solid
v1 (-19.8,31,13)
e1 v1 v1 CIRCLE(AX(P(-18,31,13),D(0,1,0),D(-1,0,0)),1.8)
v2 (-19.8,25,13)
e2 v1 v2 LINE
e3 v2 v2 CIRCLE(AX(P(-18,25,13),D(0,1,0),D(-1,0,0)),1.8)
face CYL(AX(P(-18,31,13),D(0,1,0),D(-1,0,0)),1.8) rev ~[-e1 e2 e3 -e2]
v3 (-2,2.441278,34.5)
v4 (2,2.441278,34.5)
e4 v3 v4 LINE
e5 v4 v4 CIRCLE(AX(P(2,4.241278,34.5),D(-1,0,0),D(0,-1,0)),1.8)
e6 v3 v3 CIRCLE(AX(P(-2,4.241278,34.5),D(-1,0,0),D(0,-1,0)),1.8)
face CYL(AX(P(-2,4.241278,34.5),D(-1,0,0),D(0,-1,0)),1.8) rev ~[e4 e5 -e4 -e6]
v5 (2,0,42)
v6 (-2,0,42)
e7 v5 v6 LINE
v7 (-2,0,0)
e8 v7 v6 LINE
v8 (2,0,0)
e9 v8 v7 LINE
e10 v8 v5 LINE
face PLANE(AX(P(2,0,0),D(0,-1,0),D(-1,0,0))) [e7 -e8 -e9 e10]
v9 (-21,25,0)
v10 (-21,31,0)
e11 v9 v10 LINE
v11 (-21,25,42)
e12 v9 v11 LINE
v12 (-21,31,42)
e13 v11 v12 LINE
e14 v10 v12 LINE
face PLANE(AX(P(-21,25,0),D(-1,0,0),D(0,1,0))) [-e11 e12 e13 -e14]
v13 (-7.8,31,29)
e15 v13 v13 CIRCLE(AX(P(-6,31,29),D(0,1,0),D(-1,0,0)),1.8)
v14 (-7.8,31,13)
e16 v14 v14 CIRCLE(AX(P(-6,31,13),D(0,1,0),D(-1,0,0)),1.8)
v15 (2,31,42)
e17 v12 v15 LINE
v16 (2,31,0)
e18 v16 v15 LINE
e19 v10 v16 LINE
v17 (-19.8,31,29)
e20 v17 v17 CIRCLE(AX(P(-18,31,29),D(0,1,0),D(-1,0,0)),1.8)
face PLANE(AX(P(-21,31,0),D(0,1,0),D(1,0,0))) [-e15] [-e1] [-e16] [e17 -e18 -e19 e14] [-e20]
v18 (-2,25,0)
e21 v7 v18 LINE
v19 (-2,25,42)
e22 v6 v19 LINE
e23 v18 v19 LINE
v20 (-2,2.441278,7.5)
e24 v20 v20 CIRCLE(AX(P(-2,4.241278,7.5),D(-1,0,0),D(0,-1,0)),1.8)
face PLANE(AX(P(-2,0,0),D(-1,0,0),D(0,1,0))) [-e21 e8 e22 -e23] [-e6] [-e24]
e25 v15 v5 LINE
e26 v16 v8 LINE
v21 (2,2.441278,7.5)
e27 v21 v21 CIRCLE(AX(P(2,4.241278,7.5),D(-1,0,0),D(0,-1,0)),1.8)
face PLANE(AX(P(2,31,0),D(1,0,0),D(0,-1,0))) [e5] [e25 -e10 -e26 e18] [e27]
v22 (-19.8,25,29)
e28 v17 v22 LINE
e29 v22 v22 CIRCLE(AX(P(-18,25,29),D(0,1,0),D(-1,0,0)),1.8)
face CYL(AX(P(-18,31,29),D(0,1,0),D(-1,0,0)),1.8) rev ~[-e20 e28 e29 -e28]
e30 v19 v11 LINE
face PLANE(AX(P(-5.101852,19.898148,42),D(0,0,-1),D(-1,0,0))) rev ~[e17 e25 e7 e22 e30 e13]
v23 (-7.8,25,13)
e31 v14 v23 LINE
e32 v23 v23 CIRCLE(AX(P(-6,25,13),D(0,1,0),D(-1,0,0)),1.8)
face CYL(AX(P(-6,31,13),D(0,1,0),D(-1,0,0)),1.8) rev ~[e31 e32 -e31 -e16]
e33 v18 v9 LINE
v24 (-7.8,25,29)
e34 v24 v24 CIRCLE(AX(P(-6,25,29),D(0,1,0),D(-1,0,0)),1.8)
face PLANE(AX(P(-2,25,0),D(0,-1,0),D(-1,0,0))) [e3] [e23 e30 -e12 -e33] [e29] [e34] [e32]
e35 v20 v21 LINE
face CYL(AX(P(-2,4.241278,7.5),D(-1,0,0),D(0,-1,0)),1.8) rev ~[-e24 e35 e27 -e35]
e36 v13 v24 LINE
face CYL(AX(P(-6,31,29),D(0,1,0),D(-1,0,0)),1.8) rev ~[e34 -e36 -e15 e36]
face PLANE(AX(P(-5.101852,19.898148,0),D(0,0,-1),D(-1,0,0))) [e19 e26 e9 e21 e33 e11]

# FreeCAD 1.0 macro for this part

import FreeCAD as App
import Part
import Sketcher

V = App.Vector


def add_polygon(sketch, points):
    """Adds a closed chain of lines whose ends are joined by coincident constraints."""
    first, n = sketch.GeometryCount, len(points)
    for a, b in zip(points, points[1:] + points[:1]):
        sketch.addGeometry(Part.LineSegment(App.Vector(*a, 0), App.Vector(*b, 0)), False)
    for i in range(n):
        sketch.addConstraint(Sketcher.Constraint("Coincident", first + i, 2, first + (i + 1) % n, 1))

doc = App.newDocument("Part")
params = doc.addObject("Spreadsheet::Sheet", "Params")
for row, (alias, value) in enumerate([
    ("sketch1_width", "23 mm"),
    ("sketch1_width2", "19 mm"),
    ("sketch1_height", "6 mm"),
    ("sketch1_height2", "25 mm"),
    ("pad1_length", "42 mm"),
    ("sketch2_diameter", "3.6 mm"),
    ("pocket1_length", "6 mm"),
    ("sketch3_diameter", "3.6 mm"),
    ("pocket2_length", "4 mm"),
], start=1):
    params.set(f"A{row}", alias)
    params.set(f"B{row}", "=" + value)
    params.setAlias(f"B{row}", alias)

body = doc.addObject("PartDesign::Body", "Body")

# Sketch on XY plane
sketch1 = doc.addObject("Sketcher::SketchObject", "Sketch")
body.addObject(sketch1)
sketch1.AttachmentSupport = (doc.XY_Plane, [""])
sketch1.MapMode = "FlatFace"
add_polygon(sketch1, [(2, 31), (-21, 31), (-21, 25), (-2, 25), (-2, 0), (2, 0)])  # lines 0-5
sketch1.addConstraint(Sketcher.Constraint("Horizontal", 0))
sketch1.addConstraint(Sketcher.Constraint("Vertical", 1))
sketch1.addConstraint(Sketcher.Constraint("Horizontal", 2))
sketch1.addConstraint(Sketcher.Constraint("Vertical", 3))
sketch1.addConstraint(Sketcher.Constraint("Horizontal", 4))
sketch1.addConstraint(Sketcher.Constraint("Vertical", 5))
sketch1.addConstraint(Sketcher.Constraint("Symmetric", 3, 2, 4, 2, -1, 1))
sketch1.addConstraint(Sketcher.Constraint("DistanceX", 0, 2, 0, 1, 23.0))
sketch1.addConstraint(Sketcher.Constraint("DistanceX", 2, 1, 2, 2, 19.0))
sketch1.addConstraint(Sketcher.Constraint("DistanceY", 1, 2, 1, 1, 6.0))
sketch1.addConstraint(Sketcher.Constraint("DistanceY", 3, 2, 3, 1, 25.0))
sketch1.setExpression("Constraints[13]", "Params.sketch1_width")
sketch1.setExpression("Constraints[14]", "Params.sketch1_width2")
sketch1.setExpression("Constraints[15]", "Params.sketch1_height")
sketch1.setExpression("Constraints[16]", "Params.sketch1_height2")
pad1 = doc.addObject("PartDesign::Pad", "Pad")
body.addObject(pad1)
pad1.Profile = sketch1
pad1.setExpression("Length", "Params.pad1_length")

# Sketch on XZ plane
sketch2 = doc.addObject("Sketcher::SketchObject", "Sketch001")
body.addObject(sketch2)
sketch2.AttachmentSupport = (doc.XZ_Plane, [""])
sketch2.MapMode = "FlatFace"
sketch2.AttachmentOffset = App.Placement(V(0, 0, -31), App.Rotation())
sketch2.addGeometry(Part.Circle(V(-6, 29, 0), V(0, 0, 1), 1.8), False)
sketch2.addGeometry(Part.Circle(V(-18, 29, 0), V(0, 0, 1), 1.8), False)
sketch2.addGeometry(Part.Circle(V(-6, 13, 0), V(0, 0, 1), 1.8), False)
sketch2.addGeometry(Part.Circle(V(-18, 13, 0), V(0, 0, 1), 1.8), False)
sketch2.addConstraint(Sketcher.Constraint("Equal", 0, 1))
sketch2.addConstraint(Sketcher.Constraint("Equal", 1, 2))
sketch2.addConstraint(Sketcher.Constraint("Equal", 2, 3))
sketch2.addConstraint(Sketcher.Constraint("Horizontal", 0, 3, 1, 3))
sketch2.addConstraint(Sketcher.Constraint("Horizontal", 2, 3, 3, 3))
sketch2.addConstraint(Sketcher.Constraint("Vertical", 0, 3, 2, 3))
sketch2.addConstraint(Sketcher.Constraint("Vertical", 1, 3, 3, 3))
sketch2.addConstraint(Sketcher.Constraint("Diameter", 0, 3.6))
sketch2.addConstraint(Sketcher.Constraint("DistanceX", 0, 3, -1, 1, 6.0))
sketch2.addConstraint(Sketcher.Constraint("DistanceY", -1, 1, 0, 3, 29.0))
sketch2.addConstraint(Sketcher.Constraint("DistanceX", 1, 3, -1, 1, 18.0))
sketch2.addConstraint(Sketcher.Constraint("DistanceY", -1, 1, 2, 3, 13.0))
sketch2.setExpression("Constraints[7]", "Params.sketch2_diameter")
pocket1 = doc.addObject("PartDesign::Pocket", "Pocket")
body.addObject(pocket1)
pocket1.Profile = sketch2
pocket1.setExpression("Length", "Params.pocket1_length")
pocket1.Reversed = True

# Sketch on YZ plane
sketch3 = doc.addObject("Sketcher::SketchObject", "Sketch002")
body.addObject(sketch3)
sketch3.AttachmentSupport = (doc.YZ_Plane, [""])
sketch3.MapMode = "FlatFace"
sketch3.AttachmentOffset = App.Placement(V(0, 0, -2), App.Rotation())
sketch3.addGeometry(Part.Circle(V(4.241278, 34.5, 0), V(0, 0, 1), 1.8), False)
sketch3.addGeometry(Part.Circle(V(4.241278, 7.5, 0), V(0, 0, 1), 1.8), False)
sketch3.addConstraint(Sketcher.Constraint("Equal", 0, 1))
sketch3.addConstraint(Sketcher.Constraint("Vertical", 0, 3, 1, 3))
sketch3.addConstraint(Sketcher.Constraint("Diameter", 0, 3.6))
sketch3.addConstraint(Sketcher.Constraint("DistanceY", 1, 3, 0, 3, 27.0))
sketch3.addConstraint(Sketcher.Constraint("DistanceY", -1, 1, 0, 3, 34.5))
sketch3.addConstraint(Sketcher.Constraint("DistanceX", -1, 1, 0, 3, 4.241278))
sketch3.setExpression("Constraints[2]", "Params.sketch3_diameter")
pocket2 = doc.addObject("PartDesign::Pocket", "Pocket001")
body.addObject(pocket2)
pocket2.Profile = sketch3
pocket2.setExpression("Length", "Params.pocket2_length")
pocket2.Reversed = True

doc.recompute()
